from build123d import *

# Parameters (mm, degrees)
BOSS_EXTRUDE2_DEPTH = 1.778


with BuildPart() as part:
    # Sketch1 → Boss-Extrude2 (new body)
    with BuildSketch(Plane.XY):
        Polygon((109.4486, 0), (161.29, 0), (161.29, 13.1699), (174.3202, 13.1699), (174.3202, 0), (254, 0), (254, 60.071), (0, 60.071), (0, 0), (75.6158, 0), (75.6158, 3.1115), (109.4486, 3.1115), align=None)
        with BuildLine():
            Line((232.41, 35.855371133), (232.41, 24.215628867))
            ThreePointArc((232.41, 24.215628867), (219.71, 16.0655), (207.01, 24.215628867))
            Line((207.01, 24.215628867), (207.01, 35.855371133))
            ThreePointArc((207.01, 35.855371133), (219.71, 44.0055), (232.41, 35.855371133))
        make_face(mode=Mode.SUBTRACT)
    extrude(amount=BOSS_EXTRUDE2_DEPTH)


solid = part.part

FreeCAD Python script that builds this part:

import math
import FreeCAD as App
import Part
import Sketcher
Q = App.Units.Quantity

doc = App.newDocument("Part")
body = doc.addObject("PartDesign::Body", "Body")

# Sketch on XY plane
sketch1 = doc.addObject("Sketcher::SketchObject", "Sketch")
body.addObject(sketch1)
sketch1.AttachmentSupport = (doc.XY_Plane, [""])
sketch1.MapMode = "FlatFace"
sketch1.addGeometry([
    Part.LineSegment(App.Vector(109.4, 0, 0), App.Vector(161.3, 0, 0)),  # 0
    Part.LineSegment(App.Vector(161.3, 0, 0), App.Vector(161.3, 13.2, 0)),  # 1
    Part.LineSegment(App.Vector(161.3, 13.2, 0), App.Vector(174.3, 13.2, 0)),  # 2
    Part.LineSegment(App.Vector(174.3, 13.2, 0), App.Vector(174.3, 0, 0)),  # 3
    Part.LineSegment(App.Vector(174.3, 0, 0), App.Vector(254, 0, 0)),  # 4
    Part.LineSegment(App.Vector(254, 0, 0), App.Vector(254, 60.1, 0)),  # 5
    Part.LineSegment(App.Vector(254, 60.1, 0), App.Vector(0, 60.1, 0)),  # 6
    Part.LineSegment(App.Vector(0, 60.1, 0), App.Vector(0, 0, 0)),  # 7
    Part.LineSegment(App.Vector(0, 0, 0), App.Vector(75.6, 0, 0)),  # 8
    Part.LineSegment(App.Vector(75.6, 0, 0), App.Vector(75.6, 3.1, 0)),  # 9
    Part.LineSegment(App.Vector(75.6, 3.1, 0), App.Vector(109.4, 3.1, 0)),  # 10
    Part.LineSegment(App.Vector(109.4, 3.1, 0), App.Vector(109.4, 0, 0)),  # 11
    Part.ArcOfCircle(Part.Circle(App.Vector(219.7, 30, 0), App.Vector(0, 0, 1), 14), math.radians(25), math.radians(155)),  # 12
    Part.LineSegment(App.Vector(232.4, 35.9, 0), App.Vector(232.4, 24.2, 0)),  # 13
    Part.ArcOfCircle(Part.Circle(App.Vector(219.7, 30, 0), App.Vector(0, 0, 1), 14), math.radians(-155), math.radians(-25)),  # 14
    Part.LineSegment(App.Vector(207, 24.2, 0), App.Vector(207, 35.9, 0)),  # 15
], False)
sketch1.addConstraint([
    Sketcher.Constraint("Coincident", 0, 2, 1, 1),
    Sketcher.Constraint("Coincident", 1, 2, 2, 1),
    Sketcher.Constraint("Coincident", 2, 2, 3, 1),
    Sketcher.Constraint("Coincident", 3, 2, 4, 1),
    Sketcher.Constraint("Coincident", 4, 2, 5, 1),
    Sketcher.Constraint("Coincident", 5, 2, 6, 1),
    Sketcher.Constraint("Coincident", 6, 2, 7, 1),
    Sketcher.Constraint("Coincident", 7, 2, 8, 1),
    Sketcher.Constraint("Coincident", 8, 2, 9, 1),
    Sketcher.Constraint("Coincident", 9, 2, 10, 1),
    Sketcher.Constraint("Coincident", 10, 2, 11, 1),
    Sketcher.Constraint("Coincident", 11, 2, 0, 1),
    Sketcher.Constraint("Coincident", 12, 1, 13, 1),
    Sketcher.Constraint("Coincident", 13, 2, 14, 2),
    Sketcher.Constraint("Coincident", 14, 1, 15, 1),
    Sketcher.Constraint("Coincident", 15, 2, 12, 2),
    Sketcher.Constraint("Horizontal", 0),
    Sketcher.Constraint("Vertical", 1),
    Sketcher.Constraint("Horizontal", 2),
    Sketcher.Constraint("Vertical", 3),
    Sketcher.Constraint("Horizontal", 4),
    Sketcher.Constraint("Vertical", 5),
    Sketcher.Constraint("Horizontal", 6),
    Sketcher.Constraint("Vertical", 7),
    Sketcher.Constraint("Horizontal", 8),
    Sketcher.Constraint("Vertical", 9),
    Sketcher.Constraint("Horizontal", 10),
    Sketcher.Constraint("Vertical", 11),
    Sketcher.Constraint("Vertical", 13),
    Sketcher.Constraint("Vertical", 15),
    Sketcher.Constraint("Coincident", 7, 2, -1, 1),
    Sketcher.Constraint("Coincident", 14, 3, 12, 3),
    Sketcher.Constraint("Equal", 12, 14),
    Sketcher.Constraint("PointOnObject", 0, 2, -1),
    Sketcher.Constraint("PointOnObject", 3, 2, -1),
    Sketcher.Constraint("Horizontal", 13, 2, 14, 1),
    Sketcher.Constraint("DistanceX", 6, 2, 6, 1, Q("10 in")),
    Sketcher.Constraint("Radius", 12, Q("0.55 in")),
    Sketcher.Constraint("DistanceX", 14, 1, 13, 2, Q("1 in")),
    Sketcher.Constraint("DistanceX", 0, 2, 12, 3, Q("2.3 in")),
    Sketcher.Constraint("DistanceX", 0, 1, 0, 2, Q("2.041 in")),
    Sketcher.Constraint("DistanceX", 2, 1, 2, 2, Q("0.513 in")),
    Sketcher.Constraint("DistanceX", 4, 1, 4, 2, Q("3.137 in")),
    Sketcher.Constraint("DistanceX", 8, 1, 8, 2, Q("2.977 in")),
    Sketcher.Constraint("DistanceY", 5, 1, 5, 2, Q("2.365 in")),
    Sketcher.Constraint("DistanceY", 1, 1, 1, 2, Q("0.5185 in")),
    Sketcher.Constraint("DistanceY", 9, 1, 9, 2, Q("0.1225 in")),
    Sketcher.Constraint("DistanceY", 1, 2, 12, 3, Q("0.664 in")),
])
pad1 = doc.addObject("PartDesign::Pad", "Pad")
body.addObject(pad1)
pad1.Profile = sketch1
pad1.Length = Q("0.07 in")

doc.recompute()
